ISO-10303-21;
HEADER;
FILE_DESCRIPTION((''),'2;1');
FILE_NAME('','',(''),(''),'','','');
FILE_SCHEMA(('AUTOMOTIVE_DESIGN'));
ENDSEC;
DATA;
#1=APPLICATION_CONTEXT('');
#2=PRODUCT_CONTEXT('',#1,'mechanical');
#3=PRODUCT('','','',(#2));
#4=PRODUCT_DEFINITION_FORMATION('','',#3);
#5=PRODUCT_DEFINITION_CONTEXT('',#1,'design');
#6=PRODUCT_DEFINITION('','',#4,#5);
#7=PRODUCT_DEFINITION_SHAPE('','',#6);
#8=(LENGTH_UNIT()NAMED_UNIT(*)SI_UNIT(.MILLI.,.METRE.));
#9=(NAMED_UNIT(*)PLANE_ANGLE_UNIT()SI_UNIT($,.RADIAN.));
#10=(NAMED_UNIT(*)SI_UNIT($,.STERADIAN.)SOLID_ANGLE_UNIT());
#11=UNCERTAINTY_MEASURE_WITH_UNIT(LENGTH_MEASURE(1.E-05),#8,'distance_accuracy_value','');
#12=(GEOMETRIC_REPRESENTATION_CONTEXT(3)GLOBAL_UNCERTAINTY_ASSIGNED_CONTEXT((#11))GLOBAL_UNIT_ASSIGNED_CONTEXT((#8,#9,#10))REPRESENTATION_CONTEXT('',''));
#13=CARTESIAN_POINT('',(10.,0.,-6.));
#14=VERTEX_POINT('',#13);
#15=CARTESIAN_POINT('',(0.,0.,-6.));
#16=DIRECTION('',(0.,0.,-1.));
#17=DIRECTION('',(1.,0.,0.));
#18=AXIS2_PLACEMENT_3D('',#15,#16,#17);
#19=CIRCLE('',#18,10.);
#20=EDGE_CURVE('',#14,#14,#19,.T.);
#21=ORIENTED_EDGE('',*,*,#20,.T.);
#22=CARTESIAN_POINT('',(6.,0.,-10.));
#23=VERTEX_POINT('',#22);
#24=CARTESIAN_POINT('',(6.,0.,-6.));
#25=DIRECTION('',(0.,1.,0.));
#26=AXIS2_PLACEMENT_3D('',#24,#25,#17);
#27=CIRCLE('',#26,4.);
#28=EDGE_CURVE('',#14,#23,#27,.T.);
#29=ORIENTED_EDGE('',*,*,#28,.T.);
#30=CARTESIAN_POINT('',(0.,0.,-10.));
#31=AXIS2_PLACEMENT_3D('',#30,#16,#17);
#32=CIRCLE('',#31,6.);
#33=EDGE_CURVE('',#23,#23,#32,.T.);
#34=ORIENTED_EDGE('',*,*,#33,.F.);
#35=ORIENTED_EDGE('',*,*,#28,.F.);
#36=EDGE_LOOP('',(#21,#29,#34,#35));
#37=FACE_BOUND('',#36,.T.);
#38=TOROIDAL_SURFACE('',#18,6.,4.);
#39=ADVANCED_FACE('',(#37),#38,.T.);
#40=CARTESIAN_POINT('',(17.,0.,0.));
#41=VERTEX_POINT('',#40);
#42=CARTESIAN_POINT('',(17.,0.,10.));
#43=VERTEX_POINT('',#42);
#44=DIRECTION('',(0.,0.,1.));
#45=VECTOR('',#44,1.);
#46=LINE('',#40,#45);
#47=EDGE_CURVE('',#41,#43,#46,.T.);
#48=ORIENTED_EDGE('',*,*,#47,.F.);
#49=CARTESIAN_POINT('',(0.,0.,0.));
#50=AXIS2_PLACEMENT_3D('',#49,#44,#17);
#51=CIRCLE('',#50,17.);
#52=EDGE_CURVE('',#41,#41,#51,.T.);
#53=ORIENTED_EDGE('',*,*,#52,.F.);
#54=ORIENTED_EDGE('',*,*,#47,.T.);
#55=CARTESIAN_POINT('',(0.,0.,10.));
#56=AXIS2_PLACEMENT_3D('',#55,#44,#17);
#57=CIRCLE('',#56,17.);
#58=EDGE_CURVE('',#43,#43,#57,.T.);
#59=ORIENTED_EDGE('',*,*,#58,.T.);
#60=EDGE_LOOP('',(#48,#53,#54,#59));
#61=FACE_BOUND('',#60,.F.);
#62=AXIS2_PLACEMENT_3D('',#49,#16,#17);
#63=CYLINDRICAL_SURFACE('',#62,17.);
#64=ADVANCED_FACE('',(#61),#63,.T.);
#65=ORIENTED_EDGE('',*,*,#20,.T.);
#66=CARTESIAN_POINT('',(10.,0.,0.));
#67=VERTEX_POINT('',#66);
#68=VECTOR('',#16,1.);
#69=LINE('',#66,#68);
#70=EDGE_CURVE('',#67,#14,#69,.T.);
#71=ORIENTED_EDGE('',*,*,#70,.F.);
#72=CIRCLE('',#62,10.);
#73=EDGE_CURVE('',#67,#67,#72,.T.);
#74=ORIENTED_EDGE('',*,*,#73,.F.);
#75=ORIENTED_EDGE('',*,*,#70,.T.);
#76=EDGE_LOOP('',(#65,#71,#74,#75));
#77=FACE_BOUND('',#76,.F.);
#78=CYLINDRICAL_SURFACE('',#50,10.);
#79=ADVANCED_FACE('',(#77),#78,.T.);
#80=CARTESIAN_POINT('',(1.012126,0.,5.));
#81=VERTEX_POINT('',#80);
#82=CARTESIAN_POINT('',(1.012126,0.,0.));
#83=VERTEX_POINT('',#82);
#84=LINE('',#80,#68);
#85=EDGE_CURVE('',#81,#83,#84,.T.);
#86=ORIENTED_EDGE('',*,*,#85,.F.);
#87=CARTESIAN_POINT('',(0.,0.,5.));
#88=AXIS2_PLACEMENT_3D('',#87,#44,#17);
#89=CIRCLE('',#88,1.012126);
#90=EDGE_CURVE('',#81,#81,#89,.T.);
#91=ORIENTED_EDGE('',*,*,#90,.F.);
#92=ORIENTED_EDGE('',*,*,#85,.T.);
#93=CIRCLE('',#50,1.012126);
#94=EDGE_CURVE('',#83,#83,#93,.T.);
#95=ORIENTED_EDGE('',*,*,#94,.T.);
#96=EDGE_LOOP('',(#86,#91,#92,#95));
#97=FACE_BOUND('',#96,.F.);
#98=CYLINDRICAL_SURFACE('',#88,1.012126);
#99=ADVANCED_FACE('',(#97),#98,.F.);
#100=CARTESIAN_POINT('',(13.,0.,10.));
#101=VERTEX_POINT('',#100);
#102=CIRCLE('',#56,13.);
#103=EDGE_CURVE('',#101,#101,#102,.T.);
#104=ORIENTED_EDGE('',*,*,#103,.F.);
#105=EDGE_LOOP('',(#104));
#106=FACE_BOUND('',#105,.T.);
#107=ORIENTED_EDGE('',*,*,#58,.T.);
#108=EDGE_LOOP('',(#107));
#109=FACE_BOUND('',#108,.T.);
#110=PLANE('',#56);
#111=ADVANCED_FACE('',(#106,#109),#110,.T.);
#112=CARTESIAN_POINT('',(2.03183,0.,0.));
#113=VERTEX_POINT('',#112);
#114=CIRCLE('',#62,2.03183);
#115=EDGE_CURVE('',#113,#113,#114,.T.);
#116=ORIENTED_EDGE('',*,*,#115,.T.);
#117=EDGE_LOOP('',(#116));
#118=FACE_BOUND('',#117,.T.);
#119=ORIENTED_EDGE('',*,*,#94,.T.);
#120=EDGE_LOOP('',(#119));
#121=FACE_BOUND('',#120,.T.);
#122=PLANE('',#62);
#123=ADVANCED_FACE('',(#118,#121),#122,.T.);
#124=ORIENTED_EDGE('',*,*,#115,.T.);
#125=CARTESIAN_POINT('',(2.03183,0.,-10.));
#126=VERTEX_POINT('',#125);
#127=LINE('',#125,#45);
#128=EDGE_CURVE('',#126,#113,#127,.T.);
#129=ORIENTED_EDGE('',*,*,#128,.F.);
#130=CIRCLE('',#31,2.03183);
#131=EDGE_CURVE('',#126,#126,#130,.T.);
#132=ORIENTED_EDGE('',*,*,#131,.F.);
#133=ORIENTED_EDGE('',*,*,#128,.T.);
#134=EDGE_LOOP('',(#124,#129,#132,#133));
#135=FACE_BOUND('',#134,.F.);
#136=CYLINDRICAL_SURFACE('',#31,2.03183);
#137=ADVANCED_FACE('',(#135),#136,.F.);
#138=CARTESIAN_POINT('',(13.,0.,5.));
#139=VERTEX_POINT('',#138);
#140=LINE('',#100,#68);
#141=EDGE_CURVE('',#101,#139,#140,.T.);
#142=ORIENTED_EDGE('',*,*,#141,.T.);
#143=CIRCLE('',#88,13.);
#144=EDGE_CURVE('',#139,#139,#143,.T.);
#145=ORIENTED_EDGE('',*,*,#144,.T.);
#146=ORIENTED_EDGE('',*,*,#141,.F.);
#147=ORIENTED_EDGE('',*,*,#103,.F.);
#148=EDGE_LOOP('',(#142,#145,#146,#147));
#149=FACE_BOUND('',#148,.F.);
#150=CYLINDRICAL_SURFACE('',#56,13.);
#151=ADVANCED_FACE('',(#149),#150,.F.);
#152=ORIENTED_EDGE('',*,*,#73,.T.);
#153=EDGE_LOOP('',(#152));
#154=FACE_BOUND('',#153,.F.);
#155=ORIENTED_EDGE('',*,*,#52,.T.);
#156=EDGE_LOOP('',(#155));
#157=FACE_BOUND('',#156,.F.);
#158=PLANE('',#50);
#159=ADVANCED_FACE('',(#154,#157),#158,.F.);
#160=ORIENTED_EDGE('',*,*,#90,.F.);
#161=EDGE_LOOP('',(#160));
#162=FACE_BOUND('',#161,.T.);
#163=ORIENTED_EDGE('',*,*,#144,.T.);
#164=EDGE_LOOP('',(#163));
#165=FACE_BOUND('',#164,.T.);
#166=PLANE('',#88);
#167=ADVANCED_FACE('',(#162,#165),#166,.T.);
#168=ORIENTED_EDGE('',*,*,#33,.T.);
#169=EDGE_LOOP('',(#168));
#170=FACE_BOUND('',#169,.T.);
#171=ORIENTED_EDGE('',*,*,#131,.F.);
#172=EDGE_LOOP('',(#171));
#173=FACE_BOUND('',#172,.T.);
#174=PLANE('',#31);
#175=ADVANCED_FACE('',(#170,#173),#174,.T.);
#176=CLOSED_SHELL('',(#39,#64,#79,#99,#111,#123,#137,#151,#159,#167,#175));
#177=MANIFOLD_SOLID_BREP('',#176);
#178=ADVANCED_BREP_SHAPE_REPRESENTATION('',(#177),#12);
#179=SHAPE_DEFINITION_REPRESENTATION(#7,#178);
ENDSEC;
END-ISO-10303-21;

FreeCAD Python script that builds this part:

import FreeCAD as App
import Part
import Sketcher

V = App.Vector


def edges_at(feature, points):
    """Names of the edges that pass closest to the given points."""
    edges = feature.Shape.Edges
    near = lambda p: min(range(len(edges)), key=lambda i: edges[i].distToShape(Part.Vertex(*p))[0])
    return sorted({f"Edge{near(p) + 1}" for p in points})

doc = App.newDocument("Part")
body = doc.addObject("PartDesign::Body", "Body")

# Sketch on XY plane
sketch1 = body.newObject("Sketcher::SketchObject", "Sketch")
sketch1.AttachmentSupport = (doc.getObject("XY_Plane"), [""])
sketch1.MapMode = "FlatFace"
sketch1.addGeometry(Part.Circle(V(0, 0, 0), V(0, 0, 1), 17), False)
sketch1.addConstraint([
    Sketcher.Constraint("Coincident", 0, 3, -1, 1),
    Sketcher.Constraint("Diameter", 0, 34.0),
])
pad1 = body.newObject("PartDesign::Pad", "Pad")
pad1.Profile = sketch1
pad1.Length = 10

# Sketch on XY plane
sketch2 = body.newObject("Sketcher::SketchObject", "Sketch001")
sketch2.AttachmentSupport = (doc.getObject("XY_Plane"), [""])
sketch2.MapMode = "FlatFace"
sketch2.AttachmentOffset = App.Placement(V(0, 0, 10), App.Rotation())
sketch2.addGeometry(Part.Circle(V(0, 0, 0), V(0, 0, 1), 13), False)
sketch2.addConstraint([
    Sketcher.Constraint("Coincident", 0, 3, -1, 1),
    Sketcher.Constraint("Diameter", 0, 26.0),
])
pocket1 = body.newObject("PartDesign::Pocket", "Pocket")
pocket1.Profile = sketch2
pocket1.Length = 5

# Sketch on XY plane
sketch3 = body.newObject("Sketcher::SketchObject", "Sketch002")
sketch3.AttachmentSupport = (doc.getObject("XY_Plane"), [""])
sketch3.MapMode = "FlatFace"
sketch3.addGeometry(Part.Circle(V(0, 0, 0), V(0, 0, 1), 10), False)
sketch3.addConstraint([
    Sketcher.Constraint("Coincident", 0, 3, -1, 1),
    Sketcher.Constraint("Diameter", 0, 20.0),
])
pad2 = body.newObject("PartDesign::Pad", "Pad001")
pad2.Profile = sketch3
pad2.Length = 10
pad2.Reversed = True
doc.recompute()

fillet = body.newObject("PartDesign::Fillet", "Fillet")
fillet.Base = (pad2, edges_at(pad2, [(-10, 0, -10)]))
fillet.Radius = 4

# Sketch on XY plane
sketch4 = body.newObject("Sketcher::SketchObject", "Sketch003")
sketch4.AttachmentSupport = (doc.getObject("XY_Plane"), [""])
sketch4.MapMode = "FlatFace"
sketch4.AttachmentOffset = App.Placement(V(0, 0, -10), App.Rotation())
sketch4.addGeometry(Part.Circle(V(0, 0, 0), V(0, 0, 1), 2), False)
sketch4.addConstraint([
    Sketcher.Constraint("Coincident", 0, 3, -1, 1),
    Sketcher.Constraint("Diameter", 0, 4.06366),
])
pocket2 = body.newObject("PartDesign::Pocket", "Pocket001")
pocket2.Profile = sketch4
pocket2.Length = 10
pocket2.Reversed = True

# Sketch on XY plane
sketch5 = body.newObject("Sketcher::SketchObject", "Sketch004")
sketch5.AttachmentSupport = (doc.getObject("XY_Plane"), [""])
sketch5.MapMode = "FlatFace"
sketch5.AttachmentOffset = App.Placement(V(0, 0, 5), App.Rotation())
sketch5.addGeometry(Part.Circle(V(0, 0, 0), V(0, 0, 1), 1), False)
sketch5.addConstraint([
    Sketcher.Constraint("Coincident", 0, 3, -1, 1),
    Sketcher.Constraint("Diameter", 0, 2.024252),
])
pocket3 = body.newObject("PartDesign::Pocket", "Pocket002")
pocket3.Profile = sketch5
pocket3.Type = "ThroughAll"

doc.recompute()
